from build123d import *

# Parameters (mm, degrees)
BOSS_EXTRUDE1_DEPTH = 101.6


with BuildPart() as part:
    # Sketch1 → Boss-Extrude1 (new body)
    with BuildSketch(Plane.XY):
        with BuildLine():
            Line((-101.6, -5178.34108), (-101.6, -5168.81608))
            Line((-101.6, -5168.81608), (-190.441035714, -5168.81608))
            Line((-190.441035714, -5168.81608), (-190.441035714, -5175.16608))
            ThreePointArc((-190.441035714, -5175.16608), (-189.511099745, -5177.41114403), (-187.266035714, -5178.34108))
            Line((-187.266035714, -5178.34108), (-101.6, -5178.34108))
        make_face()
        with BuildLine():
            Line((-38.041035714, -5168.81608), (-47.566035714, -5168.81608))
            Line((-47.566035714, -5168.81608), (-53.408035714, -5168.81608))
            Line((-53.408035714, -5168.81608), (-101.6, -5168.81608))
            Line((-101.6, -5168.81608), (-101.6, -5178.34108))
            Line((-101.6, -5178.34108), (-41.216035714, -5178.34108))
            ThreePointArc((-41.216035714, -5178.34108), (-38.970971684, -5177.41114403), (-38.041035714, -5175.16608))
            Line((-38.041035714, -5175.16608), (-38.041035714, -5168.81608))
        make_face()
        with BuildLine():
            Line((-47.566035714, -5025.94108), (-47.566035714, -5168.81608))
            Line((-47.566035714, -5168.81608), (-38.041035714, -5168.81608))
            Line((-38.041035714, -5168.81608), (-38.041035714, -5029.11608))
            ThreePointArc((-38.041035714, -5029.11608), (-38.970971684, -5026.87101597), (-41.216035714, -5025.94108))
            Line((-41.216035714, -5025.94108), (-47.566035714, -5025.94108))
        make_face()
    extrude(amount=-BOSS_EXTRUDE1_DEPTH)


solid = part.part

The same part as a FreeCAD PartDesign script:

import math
import FreeCAD as App
import Part
import Sketcher
from FreeCAD import Vector
Q = App.Units.Quantity

doc = App.newDocument("Part")
body = doc.addObject("PartDesign::Body", "Body")

# Sketch on XY plane
sketch1 = doc.addObject("Sketcher::SketchObject", "Sketch")
body.addObject(sketch1)
sketch1.AttachmentSupport = (doc.XY_Plane, [""])
sketch1.MapMode = "FlatFace"
sketch1.addGeometry([
    Part.LineSegment(Vector(-190.4, -5168.8, 0), Vector(-190.4, -5175.2, 0)),  # 0
    Part.ArcOfCircle(Part.Circle(Vector(-187.3, -5175.2, 0), Vector(0, 0, 1), 3.2), math.radians(180), math.radians(270)),  # 1
    Part.LineSegment(Vector(-187.3, -5178.3, 0), Vector(-41.2, -5178.3, 0)),  # 2
    Part.ArcOfCircle(Part.Circle(Vector(-41.2, -5175.2, 0), Vector(0, 0, 1), 3.2), math.radians(-90), math.radians(0)),  # 3
    Part.LineSegment(Vector(-38, -5175.2, 0), Vector(-38, -5029.1, 0)),  # 4
    Part.ArcOfCircle(Part.Circle(Vector(-41.2, -5029.1, 0), Vector(0, 0, 1), 3.2), math.radians(0), math.radians(90)),  # 5
    Part.LineSegment(Vector(-41.2, -5025.9, 0), Vector(-47.6, -5025.9, 0)),  # 6
    Part.LineSegment(Vector(-47.6, -5025.9, 0), Vector(-47.6, -5168.8, 0)),  # 7
    Part.LineSegment(Vector(-47.6, -5168.8, 0), Vector(-190.4, -5168.8, 0)),  # 8
], False)
sketch1.addConstraint([
    Sketcher.Constraint("Tangent", 0, 2, 1, 1),
    Sketcher.Constraint("Tangent", 1, 2, 2, 1),
    Sketcher.Constraint("Tangent", 2, 2, 3, 1),
    Sketcher.Constraint("Tangent", 3, 2, 4, 1),
    Sketcher.Constraint("Tangent", 4, 2, 5, 1),
    Sketcher.Constraint("Tangent", 5, 2, 6, 1),
    Sketcher.Constraint("Coincident", 6, 2, 7, 1),
    Sketcher.Constraint("Coincident", 7, 2, 8, 1),
    Sketcher.Constraint("Coincident", 8, 2, 0, 1),
    Sketcher.Constraint("Vertical", 0),
    Sketcher.Constraint("Horizontal", 2),
    Sketcher.Constraint("Vertical", 4),
    Sketcher.Constraint("Horizontal", 6),
    Sketcher.Constraint("Vertical", 7),
    Sketcher.Constraint("Horizontal", 8),
    Sketcher.Constraint("Equal", 1, 3),
    Sketcher.Constraint("Equal", 3, 5),
    Sketcher.Constraint("Equal", 6, 0),
    Sketcher.Constraint("Equal", 2, 4),
    Sketcher.Constraint("Radius", 1, Q("0.125 in")),
    Sketcher.Constraint("DistanceY", 2, 2, 5, 2, Q("6 in")),
    Sketcher.Constraint("DistanceX", 6, 2, 6, 1, Q("0.25 in")),
    Sketcher.Constraint("DistanceY", 1, 3, -1, 1, 5175.16608),
    Sketcher.Constraint("DistanceX", 1, 3, -1, 1, 187.266036),
])
pad1 = doc.addObject("PartDesign::Pad", "Pad")
body.addObject(pad1)
pad1.Profile = sketch1
pad1.Length = Q("4 in")
pad1.Reversed = True

doc.recompute()
